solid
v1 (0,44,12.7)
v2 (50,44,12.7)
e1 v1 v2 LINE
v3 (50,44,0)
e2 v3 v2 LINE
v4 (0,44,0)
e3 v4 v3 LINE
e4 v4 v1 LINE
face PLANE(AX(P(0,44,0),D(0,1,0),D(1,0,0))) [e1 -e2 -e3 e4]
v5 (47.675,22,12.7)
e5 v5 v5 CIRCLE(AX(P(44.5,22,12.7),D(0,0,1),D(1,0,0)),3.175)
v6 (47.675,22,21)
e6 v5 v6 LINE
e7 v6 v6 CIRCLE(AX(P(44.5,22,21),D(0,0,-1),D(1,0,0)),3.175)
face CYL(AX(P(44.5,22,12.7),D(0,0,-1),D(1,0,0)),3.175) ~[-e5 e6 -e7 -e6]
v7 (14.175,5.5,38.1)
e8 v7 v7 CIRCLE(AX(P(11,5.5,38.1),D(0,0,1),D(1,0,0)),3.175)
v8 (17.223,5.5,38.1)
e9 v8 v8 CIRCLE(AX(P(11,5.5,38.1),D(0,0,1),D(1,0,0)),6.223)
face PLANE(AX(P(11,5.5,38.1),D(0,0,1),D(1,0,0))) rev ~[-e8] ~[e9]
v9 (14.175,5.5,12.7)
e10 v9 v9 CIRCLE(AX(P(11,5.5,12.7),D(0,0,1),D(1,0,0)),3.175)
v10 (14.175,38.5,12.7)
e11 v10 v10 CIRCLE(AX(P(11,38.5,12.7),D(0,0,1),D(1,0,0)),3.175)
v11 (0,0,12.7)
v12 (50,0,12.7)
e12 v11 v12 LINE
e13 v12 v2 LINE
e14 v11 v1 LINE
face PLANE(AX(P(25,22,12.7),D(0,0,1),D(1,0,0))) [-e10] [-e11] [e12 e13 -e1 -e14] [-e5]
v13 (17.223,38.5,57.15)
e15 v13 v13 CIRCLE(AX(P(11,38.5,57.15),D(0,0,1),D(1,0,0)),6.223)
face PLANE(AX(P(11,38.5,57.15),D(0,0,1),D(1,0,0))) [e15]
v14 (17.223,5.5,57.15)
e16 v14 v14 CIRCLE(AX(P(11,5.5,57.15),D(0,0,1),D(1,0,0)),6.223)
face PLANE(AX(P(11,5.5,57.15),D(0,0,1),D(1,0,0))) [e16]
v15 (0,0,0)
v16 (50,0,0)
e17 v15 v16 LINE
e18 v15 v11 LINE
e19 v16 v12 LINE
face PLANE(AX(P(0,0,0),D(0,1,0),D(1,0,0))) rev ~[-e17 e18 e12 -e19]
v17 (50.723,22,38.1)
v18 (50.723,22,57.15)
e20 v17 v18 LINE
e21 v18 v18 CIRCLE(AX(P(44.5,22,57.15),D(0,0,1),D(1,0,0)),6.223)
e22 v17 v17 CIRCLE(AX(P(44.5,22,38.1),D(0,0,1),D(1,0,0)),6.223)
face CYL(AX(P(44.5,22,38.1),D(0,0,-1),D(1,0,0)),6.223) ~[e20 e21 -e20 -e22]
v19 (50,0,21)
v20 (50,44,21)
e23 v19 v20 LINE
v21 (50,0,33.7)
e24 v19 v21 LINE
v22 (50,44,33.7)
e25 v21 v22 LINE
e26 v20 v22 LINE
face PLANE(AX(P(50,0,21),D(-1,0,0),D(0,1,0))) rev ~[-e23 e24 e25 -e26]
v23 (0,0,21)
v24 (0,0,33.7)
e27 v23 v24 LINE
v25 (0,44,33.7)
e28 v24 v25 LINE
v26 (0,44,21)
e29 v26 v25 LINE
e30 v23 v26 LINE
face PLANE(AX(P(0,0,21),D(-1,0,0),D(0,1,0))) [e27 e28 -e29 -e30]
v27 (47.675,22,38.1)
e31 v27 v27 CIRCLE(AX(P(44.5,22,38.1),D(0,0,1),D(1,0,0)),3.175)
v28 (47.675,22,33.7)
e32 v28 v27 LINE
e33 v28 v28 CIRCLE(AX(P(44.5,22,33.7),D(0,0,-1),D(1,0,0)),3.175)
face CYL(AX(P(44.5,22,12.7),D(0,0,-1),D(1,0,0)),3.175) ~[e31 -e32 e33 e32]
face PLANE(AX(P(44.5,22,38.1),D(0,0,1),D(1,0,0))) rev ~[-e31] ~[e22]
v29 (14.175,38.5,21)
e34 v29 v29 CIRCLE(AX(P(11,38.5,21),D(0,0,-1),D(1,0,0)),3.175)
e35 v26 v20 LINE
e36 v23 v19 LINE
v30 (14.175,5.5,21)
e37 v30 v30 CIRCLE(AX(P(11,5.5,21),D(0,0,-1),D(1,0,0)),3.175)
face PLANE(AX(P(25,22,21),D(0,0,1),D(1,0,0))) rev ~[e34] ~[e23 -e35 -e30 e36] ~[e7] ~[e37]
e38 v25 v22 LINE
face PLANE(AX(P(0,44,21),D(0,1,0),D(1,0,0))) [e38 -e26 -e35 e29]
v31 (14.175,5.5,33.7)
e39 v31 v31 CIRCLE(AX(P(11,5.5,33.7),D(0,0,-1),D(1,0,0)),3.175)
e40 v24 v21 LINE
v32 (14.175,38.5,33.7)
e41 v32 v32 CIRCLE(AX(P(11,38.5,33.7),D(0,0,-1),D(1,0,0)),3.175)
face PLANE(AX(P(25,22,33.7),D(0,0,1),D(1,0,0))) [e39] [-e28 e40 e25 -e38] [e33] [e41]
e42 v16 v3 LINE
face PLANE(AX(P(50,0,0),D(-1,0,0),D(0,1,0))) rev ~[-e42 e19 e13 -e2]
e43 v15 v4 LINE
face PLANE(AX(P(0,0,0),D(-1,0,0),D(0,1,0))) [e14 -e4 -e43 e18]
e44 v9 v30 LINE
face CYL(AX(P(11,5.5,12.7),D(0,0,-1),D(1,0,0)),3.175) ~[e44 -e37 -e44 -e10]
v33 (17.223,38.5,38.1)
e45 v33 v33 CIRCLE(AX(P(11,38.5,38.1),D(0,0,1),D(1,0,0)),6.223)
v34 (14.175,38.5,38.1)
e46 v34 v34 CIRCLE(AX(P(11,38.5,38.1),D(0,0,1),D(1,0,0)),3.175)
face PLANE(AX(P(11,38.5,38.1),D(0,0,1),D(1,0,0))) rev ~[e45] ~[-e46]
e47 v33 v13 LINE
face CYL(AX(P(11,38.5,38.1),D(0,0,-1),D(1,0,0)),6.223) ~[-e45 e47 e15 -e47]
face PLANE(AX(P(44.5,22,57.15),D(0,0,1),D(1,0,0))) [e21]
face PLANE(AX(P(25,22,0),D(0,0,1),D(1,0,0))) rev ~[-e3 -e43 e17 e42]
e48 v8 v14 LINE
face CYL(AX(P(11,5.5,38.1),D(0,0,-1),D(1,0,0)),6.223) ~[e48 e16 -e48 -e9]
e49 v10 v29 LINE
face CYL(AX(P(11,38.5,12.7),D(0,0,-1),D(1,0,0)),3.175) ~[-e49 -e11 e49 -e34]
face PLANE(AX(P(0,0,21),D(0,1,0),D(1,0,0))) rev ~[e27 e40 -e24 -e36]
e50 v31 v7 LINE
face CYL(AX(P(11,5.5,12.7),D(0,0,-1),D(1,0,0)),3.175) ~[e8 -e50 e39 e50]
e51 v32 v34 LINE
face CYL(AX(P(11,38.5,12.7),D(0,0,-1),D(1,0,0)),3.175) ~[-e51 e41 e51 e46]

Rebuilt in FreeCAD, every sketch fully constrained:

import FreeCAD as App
import Part
import Sketcher
Q = App.Units.Quantity


def add_polygon(sketch, points):
    """Adds a closed chain of lines whose ends are joined by coincident constraints."""
    first, n = sketch.GeometryCount, len(points)
    for a, b in zip(points, points[1:] + points[:1]):
        sketch.addGeometry(Part.LineSegment(App.Vector(*a, 0), App.Vector(*b, 0)), False)
    for i in range(n):
        sketch.addConstraint(Sketcher.Constraint("Coincident", first + i, 2, first + (i + 1) % n, 1))

doc = App.newDocument("Part")
body = doc.addObject("PartDesign::Body", "Body")

# Sketch on XY plane
sketch1 = body.newObject("Sketcher::SketchObject", "Sketch")
sketch1.AttachmentSupport = (doc.getObject("XY_Plane"), [""])
sketch1.MapMode = "FlatFace"
sketch1.AttachmentOffset = App.Placement(App.Vector(0, 0, 21), App.Rotation())
add_polygon(sketch1, [(0, 44), (0, 0), (50, 0), (50, 44)])  # lines 0-3
sketch1.addConstraint(Sketcher.Constraint("Vertical", 0))
sketch1.addConstraint(Sketcher.Constraint("Horizontal", 1))
sketch1.addConstraint(Sketcher.Constraint("Vertical", 2))
sketch1.addConstraint(Sketcher.Constraint("Horizontal", 3))
sketch1.addConstraint(Sketcher.Constraint("Coincident", 0, 2, -1, 1))
sketch1.addConstraint(Sketcher.Constraint("DistanceX", 1, 1, 1, 2, 50.0))
sketch1.addConstraint(Sketcher.Constraint("DistanceY", 0, 2, 0, 1, 44.0))
pad1 = body.newObject("PartDesign::Pad", "Pad")
pad1.Profile = sketch1
pad1.Length = Q("0.5 in")
body2 = doc.addObject("PartDesign::Body", "Body001")

# Sketch on XY plane
sketch2 = body2.newObject("Sketcher::SketchObject", "Sketch001")
sketch2.AttachmentSupport = (doc.getObject("XY_Plane001"), [""])
sketch2.MapMode = "FlatFace"
sketch2.AttachmentOffset = App.Placement(App.Vector(0, 0, 1 * 25.4), App.Rotation())
sketch2.addGeometry(Part.Circle(App.Vector(0, 0, 0), App.Vector(0, 0, 1), 6), False)
sketch2.addConstraint(Sketcher.Constraint("Coincident", 0, 3, -1, 1))
sketch2.addConstraint(Sketcher.Constraint("Diameter", 0, Q("0.49 in")))
pad2 = body2.newObject("PartDesign::Pad", "Pad001")
pad2.Profile = sketch2
pad2.Length = Q("0.75 in")
body3 = doc.addObject("PartDesign::Body", "Body002")

# Sketch on XY plane
sketch3 = body3.newObject("Sketcher::SketchObject", "Sketch002")
sketch3.AttachmentSupport = (doc.getObject("XY_Plane002"), [""])
sketch3.MapMode = "FlatFace"
sketch3.addGeometry(Part.Circle(App.Vector(0, 0, 0), App.Vector(0, 0, 1), 3.2), False)
sketch3.addConstraint(Sketcher.Constraint("Coincident", 0, 3, -1, 1))
sketch3.addConstraint(Sketcher.Constraint("Diameter", 0, Q("0.25 in")))
pad3 = body3.newObject("PartDesign::Pad", "Pad002")
pad3.Profile = sketch3
pad3.Length = Q("1 in")
doc.recompute()

boolean = body3.newObject("PartDesign::Boolean", "Boolean")
boolean.Type = "Fuse"
boolean.addObjects([body2])
body4 = doc.addObject("PartDesign::Body", "Body003")
doc.recompute()

body3.Placement = App.Placement(App.Vector(11, 5.5, 12.7), App.Rotation(App.Vector(0, 0, 1), 0))
boolean2 = body4.newObject("PartDesign::Boolean", "Boolean001")
boolean2.Type = "Fuse"
boolean2.addObjects([body3])
body5 = doc.addObject("PartDesign::Body", "Body004")

# Sketch on XY plane
sketch4 = body5.newObject("Sketcher::SketchObject", "Sketch003")
sketch4.AttachmentSupport = (doc.getObject("XY_Plane004"), [""])
sketch4.MapMode = "FlatFace"
sketch4.AttachmentOffset = App.Placement(App.Vector(0, 0, 1 * 25.4), App.Rotation())
sketch4.addGeometry(Part.Circle(App.Vector(0, 0, 0), App.Vector(0, 0, 1), 6), False)
sketch4.addConstraint(Sketcher.Constraint("Coincident", 0, 3, -1, 1))
sketch4.addConstraint(Sketcher.Constraint("Diameter", 0, Q("0.49 in")))
pad4 = body5.newObject("PartDesign::Pad", "Pad003")
pad4.Profile = sketch4
pad4.Length = Q("0.75 in")
body6 = doc.addObject("PartDesign::Body", "Body005")

# Sketch on XY plane
sketch5 = body6.newObject("Sketcher::SketchObject", "Sketch004")
sketch5.AttachmentSupport = (doc.getObject("XY_Plane005"), [""])
sketch5.MapMode = "FlatFace"
sketch5.addGeometry(Part.Circle(App.Vector(0, 0, 0), App.Vector(0, 0, 1), 3.2), False)
sketch5.addConstraint(Sketcher.Constraint("Coincident", 0, 3, -1, 1))
sketch5.addConstraint(Sketcher.Constraint("Diameter", 0, Q("0.25 in")))
pad5 = body6.newObject("PartDesign::Pad", "Pad004")
pad5.Profile = sketch5
pad5.Length = Q("1 in")
doc.recompute()

boolean3 = body6.newObject("PartDesign::Boolean", "Boolean002")
boolean3.Type = "Fuse"
boolean3.addObjects([body5])
body7 = doc.addObject("PartDesign::Body", "Body006")
doc.recompute()

body6.Placement = App.Placement(App.Vector(11, 38.5, 12.7), App.Rotation(App.Vector(0, 0, 1), 0))
boolean4 = body7.newObject("PartDesign::Boolean", "Boolean003")
boolean4.Type = "Fuse"
boolean4.addObjects([body6])
body8 = doc.addObject("PartDesign::Body", "Body007")

# Sketch on XY plane
sketch6 = body8.newObject("Sketcher::SketchObject", "Sketch005")
sketch6.AttachmentSupport = (doc.getObject("XY_Plane007"), [""])
sketch6.MapMode = "FlatFace"
sketch6.AttachmentOffset = App.Placement(App.Vector(0, 0, 1 * 25.4), App.Rotation())
sketch6.addGeometry(Part.Circle(App.Vector(0, 0, 0), App.Vector(0, 0, 1), 6), False)
sketch6.addConstraint(Sketcher.Constraint("Coincident", 0, 3, -1, 1))
sketch6.addConstraint(Sketcher.Constraint("Diameter", 0, Q("0.49 in")))
pad6 = body8.newObject("PartDesign::Pad", "Pad005")
pad6.Profile = sketch6
pad6.Length = Q("0.75 in")
body9 = doc.addObject("PartDesign::Body", "Body008")

# Sketch on XY plane
sketch7 = body9.newObject("Sketcher::SketchObject", "Sketch006")
sketch7.AttachmentSupport = (doc.getObject("XY_Plane008"), [""])
sketch7.MapMode = "FlatFace"
sketch7.addGeometry(Part.Circle(App.Vector(0, 0, 0), App.Vector(0, 0, 1), 3.2), False)
sketch7.addConstraint(Sketcher.Constraint("Coincident", 0, 3, -1, 1))
sketch7.addConstraint(Sketcher.Constraint("Diameter", 0, Q("0.25 in")))
pad7 = body9.newObject("PartDesign::Pad", "Pad006")
pad7.Profile = sketch7
pad7.Length = Q("1 in")
doc.recompute()

boolean5 = body9.newObject("PartDesign::Boolean", "Boolean004")
boolean5.Type = "Fuse"
boolean5.addObjects([body8])
body10 = doc.addObject("PartDesign::Body", "Body009")
doc.recompute()

body9.Placement = App.Placement(App.Vector(44.5, 22, 12.7), App.Rotation(App.Vector(0, 0, 1), 0))
boolean6 = body10.newObject("PartDesign::Boolean", "Boolean005")
boolean6.Type = "Fuse"
boolean6.addObjects([body9])
body11 = doc.addObject("PartDesign::Body", "Body010")
body11.AllowCompound = True

# Sketch on XY plane
sketch8 = body11.newObject("Sketcher::SketchObject", "Sketch007")
sketch8.AttachmentSupport = (doc.getObject("XY_Plane010"), [""])
sketch8.MapMode = "FlatFace"
add_polygon(sketch8, [(0, 44), (0, 0), (50, 0), (50, 44)])  # lines 0-3
sketch8.addConstraint(Sketcher.Constraint("Vertical", 0))
sketch8.addConstraint(Sketcher.Constraint("Horizontal", 1))
sketch8.addConstraint(Sketcher.Constraint("Vertical", 2))
sketch8.addConstraint(Sketcher.Constraint("Horizontal", 3))
sketch8.addConstraint(Sketcher.Constraint("Coincident", 0, 2, -1, 1))
sketch8.addConstraint(Sketcher.Constraint("DistanceX", 1, 1, 1, 2, 50.0))
sketch8.addConstraint(Sketcher.Constraint("DistanceY", 0, 2, 0, 1, 44.0))
pad8 = body11.newObject("PartDesign::Pad", "Pad007")
pad8.Profile = sketch8
pad8.Length = Q("0.5 in")
doc.recompute()

boolean7 = body11.newObject("PartDesign::Boolean", "Boolean006")
boolean7.Type = "Fuse"
boolean7.addObjects([body])
doc.recompute()

boolean8 = body11.newObject("PartDesign::Boolean", "Boolean007")
boolean8.Type = "Fuse"
boolean8.addObjects([body4])
doc.recompute()

boolean9 = body11.newObject("PartDesign::Boolean", "Boolean008")
boolean9.Type = "Fuse"
boolean9.addObjects([body7])
doc.recompute()

boolean10 = body11.newObject("PartDesign::Boolean", "Boolean009")
boolean10.Type = "Fuse"
boolean10.addObjects([body10])

doc.recompute()
